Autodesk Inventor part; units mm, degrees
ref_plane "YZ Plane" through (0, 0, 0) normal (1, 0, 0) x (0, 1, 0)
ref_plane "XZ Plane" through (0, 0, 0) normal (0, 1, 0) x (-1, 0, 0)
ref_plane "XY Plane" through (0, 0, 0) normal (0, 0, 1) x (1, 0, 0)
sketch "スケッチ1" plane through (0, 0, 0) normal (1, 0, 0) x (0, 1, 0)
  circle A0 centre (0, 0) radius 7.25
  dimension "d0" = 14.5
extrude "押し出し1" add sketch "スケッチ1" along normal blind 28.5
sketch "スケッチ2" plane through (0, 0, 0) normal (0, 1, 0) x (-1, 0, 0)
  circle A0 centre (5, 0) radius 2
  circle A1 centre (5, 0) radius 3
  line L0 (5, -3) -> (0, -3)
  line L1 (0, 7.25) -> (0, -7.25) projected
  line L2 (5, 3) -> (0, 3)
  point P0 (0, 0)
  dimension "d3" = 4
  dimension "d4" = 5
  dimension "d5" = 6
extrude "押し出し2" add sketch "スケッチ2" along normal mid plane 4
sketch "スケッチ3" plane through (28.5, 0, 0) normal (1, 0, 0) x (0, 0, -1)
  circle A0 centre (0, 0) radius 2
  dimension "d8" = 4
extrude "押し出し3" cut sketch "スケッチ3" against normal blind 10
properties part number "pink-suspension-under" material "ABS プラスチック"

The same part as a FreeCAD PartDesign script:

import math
import FreeCAD as App
import Part
import Sketcher

doc = App.newDocument("Part")
body = doc.addObject("PartDesign::Body", "Body")

# Sketch on YZ plane
sketch1 = body.newObject("Sketcher::SketchObject", "Sketch")
sketch1.AttachmentSupport = (doc.getObject("YZ_Plane"), [""])
sketch1.MapMode = "FlatFace"
sketch1.addGeometry(Part.Circle(App.Vector(0, 0, 0), App.Vector(0, 0, 1), 7), False)
sketch1.addConstraint(Sketcher.Constraint("Coincident", 0, 3, -1, 1))
sketch1.addConstraint(Sketcher.Constraint("Diameter", 0, 14.5))
pad1 = body.newObject("PartDesign::Pad", "Pad")
pad1.Profile = sketch1
pad1.Length = 28.5

# Sketch on XZ plane
sketch2 = body.newObject("Sketcher::SketchObject", "Sketch001")
sketch2.AttachmentSupport = (doc.getObject("XZ_Plane"), [""])
sketch2.MapMode = "FlatFace"
sketch2.addGeometry(Part.ArcOfCircle(Part.Circle(App.Vector(-5, 0, 0), App.Vector(0, 0, 1), 3), math.radians(90), math.radians(270)), False)
sketch2.addGeometry(Part.LineSegment(App.Vector(-5, 3, 0), App.Vector(0, 3, 0)), False)
sketch2.addGeometry(Part.LineSegment(App.Vector(0, 3, 0), App.Vector(0, -3, 0)), False)
sketch2.addGeometry(Part.LineSegment(App.Vector(0, -3, 0), App.Vector(-5, -3, 0)), False)
sketch2.addGeometry(Part.Circle(App.Vector(-5, 0, 0), App.Vector(0, 0, 1), 2), False)
sketch2.addConstraint(Sketcher.Constraint("Tangent", 0, 1, 1, 1))
sketch2.addConstraint(Sketcher.Constraint("Coincident", 1, 2, 2, 1))
sketch2.addConstraint(Sketcher.Constraint("Coincident", 2, 2, 3, 1))
sketch2.addConstraint(Sketcher.Constraint("Tangent", 3, 2, 0, 2))
sketch2.addConstraint(Sketcher.Constraint("Horizontal", 1))
sketch2.addConstraint(Sketcher.Constraint("Vertical", 2))
sketch2.addConstraint(Sketcher.Constraint("Horizontal", 3))
sketch2.addConstraint(Sketcher.Constraint("Coincident", 4, 3, 0, 3))
sketch2.addConstraint(Sketcher.Constraint("Symmetric", 1, 2, 2, 2, -1, 1))
sketch2.addConstraint(Sketcher.Constraint("Diameter", 4, 4.0))
sketch2.addConstraint(Sketcher.Constraint("Radius", 0, 3.0))
sketch2.addConstraint(Sketcher.Constraint("DistanceX", 1, 1, 1, 2, 5.0))
pad2 = body.newObject("PartDesign::Pad", "Pad001")
pad2.Profile = sketch2
pad2.Length = 4
pad2.Midplane = True

# Sketch on YZ plane
sketch3 = body.newObject("Sketcher::SketchObject", "Sketch002")
sketch3.AttachmentSupport = (doc.getObject("YZ_Plane"), [""])
sketch3.MapMode = "FlatFace"
sketch3.AttachmentOffset = App.Placement(App.Vector(0, 0, 28.5), App.Rotation())
sketch3.addGeometry(Part.Circle(App.Vector(0, 0, 0), App.Vector(0, 0, 1), 2), False)
sketch3.addConstraint(Sketcher.Constraint("Coincident", 0, 3, -1, 1))
sketch3.addConstraint(Sketcher.Constraint("Diameter", 0, 4.0))
pocket1 = body.newObject("PartDesign::Pocket", "Pocket")
pocket1.Profile = sketch3
pocket1.Length = 10

doc.recompute()
